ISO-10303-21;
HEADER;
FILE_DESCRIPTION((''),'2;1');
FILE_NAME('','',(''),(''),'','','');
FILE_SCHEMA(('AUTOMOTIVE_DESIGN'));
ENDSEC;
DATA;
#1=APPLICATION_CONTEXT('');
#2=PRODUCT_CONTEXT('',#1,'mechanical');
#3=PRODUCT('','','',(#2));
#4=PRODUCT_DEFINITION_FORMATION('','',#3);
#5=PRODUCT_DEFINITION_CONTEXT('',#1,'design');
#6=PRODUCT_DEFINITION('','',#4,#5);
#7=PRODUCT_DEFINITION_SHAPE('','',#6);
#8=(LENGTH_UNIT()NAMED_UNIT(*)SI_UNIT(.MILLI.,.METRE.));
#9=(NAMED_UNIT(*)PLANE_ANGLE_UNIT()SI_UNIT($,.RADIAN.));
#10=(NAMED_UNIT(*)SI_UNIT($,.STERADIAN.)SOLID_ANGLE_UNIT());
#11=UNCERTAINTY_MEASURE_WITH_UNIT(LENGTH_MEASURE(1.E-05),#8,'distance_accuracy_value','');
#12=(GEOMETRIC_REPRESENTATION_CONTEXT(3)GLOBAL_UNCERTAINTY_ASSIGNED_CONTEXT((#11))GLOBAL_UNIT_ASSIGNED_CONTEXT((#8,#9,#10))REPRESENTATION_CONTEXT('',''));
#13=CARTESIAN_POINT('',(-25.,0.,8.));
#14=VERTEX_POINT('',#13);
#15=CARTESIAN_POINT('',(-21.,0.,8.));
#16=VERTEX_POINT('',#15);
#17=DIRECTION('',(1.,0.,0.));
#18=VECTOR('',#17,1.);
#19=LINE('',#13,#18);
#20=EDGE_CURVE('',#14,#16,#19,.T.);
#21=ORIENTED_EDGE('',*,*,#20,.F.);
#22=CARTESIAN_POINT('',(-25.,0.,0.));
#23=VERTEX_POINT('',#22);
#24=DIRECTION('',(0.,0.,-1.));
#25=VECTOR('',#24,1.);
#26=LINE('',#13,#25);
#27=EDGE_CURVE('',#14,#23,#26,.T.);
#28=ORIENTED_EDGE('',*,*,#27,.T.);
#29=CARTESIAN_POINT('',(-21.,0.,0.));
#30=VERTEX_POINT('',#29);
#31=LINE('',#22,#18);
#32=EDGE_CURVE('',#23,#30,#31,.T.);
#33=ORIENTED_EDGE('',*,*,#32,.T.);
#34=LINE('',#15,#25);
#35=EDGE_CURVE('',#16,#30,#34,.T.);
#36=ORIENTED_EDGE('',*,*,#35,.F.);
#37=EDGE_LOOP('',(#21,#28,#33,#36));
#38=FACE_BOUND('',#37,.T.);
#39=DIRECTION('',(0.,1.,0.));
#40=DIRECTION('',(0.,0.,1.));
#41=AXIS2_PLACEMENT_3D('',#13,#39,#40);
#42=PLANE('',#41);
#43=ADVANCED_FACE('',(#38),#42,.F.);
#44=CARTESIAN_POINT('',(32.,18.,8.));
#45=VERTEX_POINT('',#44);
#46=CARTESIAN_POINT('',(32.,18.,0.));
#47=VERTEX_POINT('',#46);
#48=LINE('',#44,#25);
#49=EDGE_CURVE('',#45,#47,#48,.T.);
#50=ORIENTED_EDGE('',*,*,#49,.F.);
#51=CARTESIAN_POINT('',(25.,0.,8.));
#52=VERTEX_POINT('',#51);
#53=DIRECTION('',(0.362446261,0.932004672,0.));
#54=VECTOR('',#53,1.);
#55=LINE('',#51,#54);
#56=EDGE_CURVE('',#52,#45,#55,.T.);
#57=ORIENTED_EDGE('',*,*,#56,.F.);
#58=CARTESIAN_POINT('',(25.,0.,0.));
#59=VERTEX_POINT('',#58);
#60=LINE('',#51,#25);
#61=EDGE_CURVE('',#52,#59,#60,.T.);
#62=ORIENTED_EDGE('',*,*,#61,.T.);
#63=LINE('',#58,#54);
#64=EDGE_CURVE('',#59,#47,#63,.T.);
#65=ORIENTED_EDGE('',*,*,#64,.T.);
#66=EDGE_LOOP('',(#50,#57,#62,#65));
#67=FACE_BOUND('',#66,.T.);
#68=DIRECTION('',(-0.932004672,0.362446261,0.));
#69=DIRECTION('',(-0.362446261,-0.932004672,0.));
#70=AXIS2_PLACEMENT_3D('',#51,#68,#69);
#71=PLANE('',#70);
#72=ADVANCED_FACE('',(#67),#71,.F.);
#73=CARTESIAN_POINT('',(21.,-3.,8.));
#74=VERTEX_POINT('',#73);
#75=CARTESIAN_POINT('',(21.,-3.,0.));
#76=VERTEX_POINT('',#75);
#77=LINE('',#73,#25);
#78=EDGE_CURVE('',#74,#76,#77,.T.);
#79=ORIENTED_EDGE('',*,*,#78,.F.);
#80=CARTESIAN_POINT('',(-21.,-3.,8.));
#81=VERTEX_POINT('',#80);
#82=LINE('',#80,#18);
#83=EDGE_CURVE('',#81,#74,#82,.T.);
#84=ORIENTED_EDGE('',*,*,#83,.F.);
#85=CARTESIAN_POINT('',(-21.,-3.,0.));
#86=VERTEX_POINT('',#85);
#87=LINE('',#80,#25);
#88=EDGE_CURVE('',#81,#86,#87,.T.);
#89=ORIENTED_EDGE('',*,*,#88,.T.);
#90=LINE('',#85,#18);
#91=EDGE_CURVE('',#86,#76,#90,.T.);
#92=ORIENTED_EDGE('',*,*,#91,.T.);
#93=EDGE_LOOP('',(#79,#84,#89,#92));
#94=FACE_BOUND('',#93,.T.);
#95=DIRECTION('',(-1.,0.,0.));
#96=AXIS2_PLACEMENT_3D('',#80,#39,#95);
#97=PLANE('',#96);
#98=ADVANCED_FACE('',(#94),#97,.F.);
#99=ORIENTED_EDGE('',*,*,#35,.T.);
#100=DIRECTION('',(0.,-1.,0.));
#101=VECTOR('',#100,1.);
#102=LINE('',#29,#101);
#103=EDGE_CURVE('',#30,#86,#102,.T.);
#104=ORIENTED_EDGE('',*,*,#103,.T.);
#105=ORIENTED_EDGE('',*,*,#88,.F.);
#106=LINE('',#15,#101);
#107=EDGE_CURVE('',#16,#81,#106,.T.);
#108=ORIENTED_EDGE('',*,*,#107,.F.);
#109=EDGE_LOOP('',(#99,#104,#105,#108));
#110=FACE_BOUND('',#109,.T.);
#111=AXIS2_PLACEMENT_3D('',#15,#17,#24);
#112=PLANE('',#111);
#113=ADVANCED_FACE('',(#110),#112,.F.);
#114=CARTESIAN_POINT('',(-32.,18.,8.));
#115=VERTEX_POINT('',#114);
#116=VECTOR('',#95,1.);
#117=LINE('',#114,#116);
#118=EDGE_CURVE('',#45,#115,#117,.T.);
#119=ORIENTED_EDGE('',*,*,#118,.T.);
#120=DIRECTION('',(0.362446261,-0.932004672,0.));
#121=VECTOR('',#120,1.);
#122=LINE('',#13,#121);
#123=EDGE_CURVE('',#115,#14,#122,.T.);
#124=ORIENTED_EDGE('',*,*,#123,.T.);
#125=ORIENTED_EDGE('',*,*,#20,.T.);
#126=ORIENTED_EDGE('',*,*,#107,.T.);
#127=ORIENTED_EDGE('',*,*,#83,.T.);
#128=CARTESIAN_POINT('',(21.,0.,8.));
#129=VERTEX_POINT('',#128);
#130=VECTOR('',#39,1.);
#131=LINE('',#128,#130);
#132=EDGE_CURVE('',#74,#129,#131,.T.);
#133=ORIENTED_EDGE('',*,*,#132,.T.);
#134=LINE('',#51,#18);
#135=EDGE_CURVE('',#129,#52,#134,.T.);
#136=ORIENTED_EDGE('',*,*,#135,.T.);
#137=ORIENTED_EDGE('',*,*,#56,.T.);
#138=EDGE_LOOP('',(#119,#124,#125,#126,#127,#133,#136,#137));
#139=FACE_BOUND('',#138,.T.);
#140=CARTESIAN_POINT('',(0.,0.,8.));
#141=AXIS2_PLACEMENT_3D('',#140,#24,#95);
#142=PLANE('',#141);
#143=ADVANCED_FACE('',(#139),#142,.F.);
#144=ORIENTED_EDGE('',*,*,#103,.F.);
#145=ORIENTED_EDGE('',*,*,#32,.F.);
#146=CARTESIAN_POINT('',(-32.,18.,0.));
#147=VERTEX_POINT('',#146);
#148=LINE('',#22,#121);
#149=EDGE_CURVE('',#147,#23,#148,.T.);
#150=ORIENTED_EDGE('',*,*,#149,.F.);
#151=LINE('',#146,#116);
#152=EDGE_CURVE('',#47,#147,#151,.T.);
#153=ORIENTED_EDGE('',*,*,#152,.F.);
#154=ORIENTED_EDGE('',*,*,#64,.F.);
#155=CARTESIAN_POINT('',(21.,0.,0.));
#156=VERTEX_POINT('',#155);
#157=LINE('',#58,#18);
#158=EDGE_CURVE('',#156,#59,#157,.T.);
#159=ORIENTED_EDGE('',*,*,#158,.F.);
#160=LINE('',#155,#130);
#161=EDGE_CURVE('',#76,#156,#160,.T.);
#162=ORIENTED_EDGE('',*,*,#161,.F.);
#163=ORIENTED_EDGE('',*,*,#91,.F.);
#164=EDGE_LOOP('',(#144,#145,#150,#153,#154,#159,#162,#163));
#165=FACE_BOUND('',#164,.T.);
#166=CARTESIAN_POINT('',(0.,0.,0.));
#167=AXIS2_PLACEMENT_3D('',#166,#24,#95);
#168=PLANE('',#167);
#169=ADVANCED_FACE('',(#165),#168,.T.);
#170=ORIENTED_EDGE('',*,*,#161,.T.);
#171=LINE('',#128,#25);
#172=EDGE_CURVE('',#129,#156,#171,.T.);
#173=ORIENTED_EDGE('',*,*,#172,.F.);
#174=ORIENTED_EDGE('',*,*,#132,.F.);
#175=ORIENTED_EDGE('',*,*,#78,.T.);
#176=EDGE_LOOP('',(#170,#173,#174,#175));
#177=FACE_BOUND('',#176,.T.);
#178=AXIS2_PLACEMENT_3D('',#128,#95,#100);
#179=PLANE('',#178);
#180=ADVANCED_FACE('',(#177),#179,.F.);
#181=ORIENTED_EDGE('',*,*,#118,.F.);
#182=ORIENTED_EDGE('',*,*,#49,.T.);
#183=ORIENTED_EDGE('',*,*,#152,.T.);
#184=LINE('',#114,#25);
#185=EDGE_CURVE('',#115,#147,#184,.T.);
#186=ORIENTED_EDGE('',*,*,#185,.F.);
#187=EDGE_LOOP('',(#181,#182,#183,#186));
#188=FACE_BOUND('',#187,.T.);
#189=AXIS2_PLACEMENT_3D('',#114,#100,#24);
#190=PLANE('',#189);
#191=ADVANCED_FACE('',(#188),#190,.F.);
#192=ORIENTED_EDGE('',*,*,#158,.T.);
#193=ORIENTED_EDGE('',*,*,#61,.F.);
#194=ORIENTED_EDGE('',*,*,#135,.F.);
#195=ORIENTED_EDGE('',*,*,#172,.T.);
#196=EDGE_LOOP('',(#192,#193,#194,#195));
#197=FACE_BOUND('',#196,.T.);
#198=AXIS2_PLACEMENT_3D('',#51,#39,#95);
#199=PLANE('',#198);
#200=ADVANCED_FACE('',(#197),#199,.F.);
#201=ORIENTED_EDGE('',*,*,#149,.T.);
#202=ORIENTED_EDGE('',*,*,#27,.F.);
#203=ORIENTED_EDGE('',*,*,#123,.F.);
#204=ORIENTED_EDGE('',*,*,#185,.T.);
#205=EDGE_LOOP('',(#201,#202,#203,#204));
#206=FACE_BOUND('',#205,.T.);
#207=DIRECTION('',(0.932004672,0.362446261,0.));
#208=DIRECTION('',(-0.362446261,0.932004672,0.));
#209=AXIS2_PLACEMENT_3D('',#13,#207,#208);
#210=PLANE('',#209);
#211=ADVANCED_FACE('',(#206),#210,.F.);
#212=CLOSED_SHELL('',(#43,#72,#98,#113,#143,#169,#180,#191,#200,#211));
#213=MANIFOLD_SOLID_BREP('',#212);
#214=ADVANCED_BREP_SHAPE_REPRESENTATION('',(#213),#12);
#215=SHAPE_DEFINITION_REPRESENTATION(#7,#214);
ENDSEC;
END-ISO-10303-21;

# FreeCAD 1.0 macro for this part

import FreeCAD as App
import Part
import Sketcher
Q = App.Units.Quantity

doc = App.newDocument("Part")
body = doc.addObject("PartDesign::Body", "Body")

sketch1 = doc.addObject("Sketcher::SketchObject", "Sketch")
body.addObject(sketch1)
sketch1.AttachmentSupport = (doc.XY_Plane, [""])
sketch1.MapMode = "FlatFace"
sketch1.addGeometry([
    Part.LineSegment(App.Vector(32, 18, 0), App.Vector(-32, 18, 0)),
    Part.LineSegment(App.Vector(-32, 18, 0), App.Vector(-25, 0, 0)),
    Part.LineSegment(App.Vector(-25, 0, 0), App.Vector(-21, 0, 0)),
    Part.LineSegment(App.Vector(-21, 0, 0), App.Vector(-21, -3, 0)),
    Part.LineSegment(App.Vector(-21, -3, 0), App.Vector(21, -3, 0)),
    Part.LineSegment(App.Vector(21, -3, 0), App.Vector(21, 0, 0)),
    Part.LineSegment(App.Vector(21, 0, 0), App.Vector(25, 0, 0)),
    Part.LineSegment(App.Vector(25, 0, 0), App.Vector(32, 18, 0)),
], False)
sketch1.addConstraint([
    Sketcher.Constraint("Coincident", 0, 2, 1, 1),
    Sketcher.Constraint("Coincident", 1, 2, 2, 1),
    Sketcher.Constraint("Coincident", 2, 2, 3, 1),
    Sketcher.Constraint("Coincident", 3, 2, 4, 1),
    Sketcher.Constraint("Coincident", 4, 2, 5, 1),
    Sketcher.Constraint("Coincident", 5, 2, 6, 1),
    Sketcher.Constraint("Coincident", 6, 2, 7, 1),
    Sketcher.Constraint("Coincident", 7, 2, 0, 1),
    Sketcher.Constraint("Horizontal", 0),
    Sketcher.Constraint("Horizontal", 2),
    Sketcher.Constraint("Vertical", 3),
    Sketcher.Constraint("Horizontal", 4),
    Sketcher.Constraint("Vertical", 5),
    Sketcher.Constraint("Horizontal", 6),
    Sketcher.Constraint("Symmetric", 2, 2, 5, 2, -1, 1),
    Sketcher.Constraint("Symmetric", 1, 2, 6, 2, -2),
    Sketcher.Constraint("Equal", 1, 7),
    Sketcher.Constraint("DistanceX", 0, 2, 0, 1, Q("64 mm")),
    Sketcher.Constraint("DistanceX", 2, 1, 2, 2, Q("4 mm")),
    Sketcher.Constraint("DistanceX", 4, 1, 4, 2, Q("42 mm")),
    Sketcher.Constraint("DistanceY", 3, 2, 3, 1, Q("3 mm")),
    Sketcher.Constraint("DistanceY", -1, 1, 0, 2, Q("18 mm")),
])
pad1 = doc.addObject("PartDesign::Pad", "Pad")
body.addObject(pad1)
pad1.Profile = sketch1
pad1.Length = 8

doc.recompute()
